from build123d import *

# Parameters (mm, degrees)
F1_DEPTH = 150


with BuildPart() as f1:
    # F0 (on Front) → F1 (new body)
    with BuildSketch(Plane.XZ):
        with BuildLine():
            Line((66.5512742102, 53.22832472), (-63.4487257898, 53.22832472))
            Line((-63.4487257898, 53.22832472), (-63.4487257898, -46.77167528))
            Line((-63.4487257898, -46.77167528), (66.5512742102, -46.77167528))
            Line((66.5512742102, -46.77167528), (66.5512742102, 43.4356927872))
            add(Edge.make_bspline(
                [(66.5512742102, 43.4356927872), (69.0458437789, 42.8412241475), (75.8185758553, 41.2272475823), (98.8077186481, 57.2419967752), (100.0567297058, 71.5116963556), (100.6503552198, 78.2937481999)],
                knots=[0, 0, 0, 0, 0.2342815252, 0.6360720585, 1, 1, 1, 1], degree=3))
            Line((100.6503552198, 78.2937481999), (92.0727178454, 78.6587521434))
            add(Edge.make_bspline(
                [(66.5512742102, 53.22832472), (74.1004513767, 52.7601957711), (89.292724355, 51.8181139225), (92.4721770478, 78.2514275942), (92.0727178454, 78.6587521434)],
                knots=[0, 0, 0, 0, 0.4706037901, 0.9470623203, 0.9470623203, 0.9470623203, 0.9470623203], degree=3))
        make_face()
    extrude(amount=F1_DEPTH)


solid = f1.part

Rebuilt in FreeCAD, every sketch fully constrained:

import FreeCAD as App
import Part
import Sketcher
Q = App.Units.Quantity

doc = App.newDocument("Part")
body = doc.addObject("PartDesign::Body", "Body")

sketch1 = doc.addObject("Sketcher::SketchObject", "Sketch")
body.addObject(sketch1)
sketch1.AttachmentSupport = (doc.XZ_Plane, [""])
sketch1.MapMode = "FlatFace"
sketch1.addGeometry([
    Part.LineSegment(App.Vector(66.551274, 53.228325, 0), App.Vector(-63.448726, 53.228325, 0)),
    Part.LineSegment(App.Vector(-63.448726, 53.228325, 0), App.Vector(-63.448726, -46.771675, 0)),
    Part.LineSegment(App.Vector(-63.448726, -46.771675, 0), App.Vector(66.551274, -46.771675, 0)),
    Part.LineSegment(App.Vector(66.551274, -46.771675, 0), App.Vector(66.551274, 43.435693, 0)),
    Part.BSplineCurve([App.Vector(66.551274, 43.435693, 0), App.Vector(69.045844, 42.841224, 0), App.Vector(75.818576, 41.227248, 0), App.Vector(98.807719, 57.241997, 0), App.Vector(100.05673, 71.511696, 0), App.Vector(100.650355, 78.293748, 0)], [4, 1, 1, 4], [0, 0.234281525, 0.636072059, 1], False, 3, [1, 1, 1, 1, 1, 1], False),
    Part.LineSegment(App.Vector(100.650355, 78.293748, 0), App.Vector(92.072718, 78.658752, 0)),
    Part.BSplineCurve([App.Vector(66.551274, 53.228325, 0), App.Vector(74.100451, 52.760196, 0), App.Vector(89.292724, 51.818114, 0), App.Vector(92.472177, 78.251428, 0), App.Vector(92.072718, 78.658752, 0)], [4, 1, 4], [0, 0.47060379, 0.94706232], False, 3, [1, 1, 1, 1, 1], False),
], False)
sketch1.addConstraint([
    Sketcher.Constraint("Block", 4),
    Sketcher.Constraint("Block", 6),
    Sketcher.Constraint("Coincident", 0, 2, 1, 1),
    Sketcher.Constraint("Coincident", 1, 2, 2, 1),
    Sketcher.Constraint("Coincident", 2, 2, 3, 1),
    Sketcher.Constraint("Coincident", 3, 2, 4, 1),
    Sketcher.Constraint("Coincident", 4, 2, 5, 1),
    Sketcher.Constraint("Coincident", 5, 2, 6, 2),
    Sketcher.Constraint("Coincident", 6, 1, 0, 1),
    Sketcher.Constraint("Horizontal", 0),
    Sketcher.Constraint("Vertical", 1),
    Sketcher.Constraint("Horizontal", 2),
    Sketcher.Constraint("Vertical", 3),
    Sketcher.Constraint("DistanceX", 0, 2, 0, 1, Q("130 mm")),
    Sketcher.Constraint("DistanceY", 1, 2, 1, 1, Q("100 mm")),
])
pad1 = doc.addObject("PartDesign::Pad", "Pad")
body.addObject(pad1)
pad1.Profile = sketch1
pad1.Length = 150

doc.recompute()
